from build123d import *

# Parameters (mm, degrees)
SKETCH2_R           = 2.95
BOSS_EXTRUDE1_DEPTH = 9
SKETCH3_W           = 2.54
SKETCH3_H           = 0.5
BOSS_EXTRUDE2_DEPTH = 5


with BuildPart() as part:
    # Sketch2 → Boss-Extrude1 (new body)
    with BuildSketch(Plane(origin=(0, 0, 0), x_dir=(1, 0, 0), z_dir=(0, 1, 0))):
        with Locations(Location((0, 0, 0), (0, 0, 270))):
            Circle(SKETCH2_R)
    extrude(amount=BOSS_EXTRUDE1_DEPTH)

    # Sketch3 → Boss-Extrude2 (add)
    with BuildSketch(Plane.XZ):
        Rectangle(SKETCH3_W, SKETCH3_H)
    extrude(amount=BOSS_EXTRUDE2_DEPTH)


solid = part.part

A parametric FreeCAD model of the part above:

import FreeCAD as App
import Part
import Sketcher
from FreeCAD import Vector
Q = App.Units.Quantity

doc = App.newDocument("Part")
body = doc.addObject("PartDesign::Body", "Body")

sketch1 = doc.addObject("Sketcher::SketchObject", "Sketch")
body.addObject(sketch1)
sketch1.AttachmentSupport = (doc.XZ_Plane, [""])
sketch1.MapMode = "FlatFace"
sketch1.addGeometry(Part.Circle(Vector(0, 0, 0), Vector(0, 0, 1), 2.95), False)
sketch1.addConstraint(Sketcher.Constraint("Coincident", 0, 3, -1, 1))
sketch1.addConstraint(Sketcher.Constraint("Diameter", 0, Q("5.9 mm")))
pad1 = doc.addObject("PartDesign::Pad", "Pad")
body.addObject(pad1)
pad1.Profile = sketch1
pad1.Length = 9
pad1.Reversed = True

sketch2 = doc.addObject("Sketcher::SketchObject", "Sketch001")
body.addObject(sketch2)
sketch2.AttachmentSupport = (doc.XZ_Plane, [""])
sketch2.MapMode = "FlatFace"
sketch2.addGeometry(Part.LineSegment(Vector(-1.27, 0.25, 0), Vector(-1.27, -0.25, 0)), False)
sketch2.addGeometry(Part.LineSegment(Vector(-1.27, -0.25, 0), Vector(1.27, -0.25, 0)), False)
sketch2.addGeometry(Part.LineSegment(Vector(1.27, -0.25, 0), Vector(1.27, 0.25, 0)), False)
sketch2.addGeometry(Part.LineSegment(Vector(1.27, 0.25, 0), Vector(-1.27, 0.25, 0)), False)
sketch2.addConstraint(Sketcher.Constraint("Coincident", 0, 2, 1, 1))
sketch2.addConstraint(Sketcher.Constraint("Coincident", 1, 2, 2, 1))
sketch2.addConstraint(Sketcher.Constraint("Coincident", 2, 2, 3, 1))
sketch2.addConstraint(Sketcher.Constraint("Coincident", 3, 2, 0, 1))
sketch2.addConstraint(Sketcher.Constraint("Vertical", 0))
sketch2.addConstraint(Sketcher.Constraint("Horizontal", 1))
sketch2.addConstraint(Sketcher.Constraint("Vertical", 2))
sketch2.addConstraint(Sketcher.Constraint("Horizontal", 3))
sketch2.addConstraint(Sketcher.Constraint("Symmetric", 0, 2, 2, 2, -1, 1))
sketch2.addConstraint(Sketcher.Constraint("DistanceY", 0, 2, 0, 1, Q("0.5 mm")))
sketch2.addConstraint(Sketcher.Constraint("DistanceX", 1, 1, 1, 2, Q("2.54 mm")))
pad2 = doc.addObject("PartDesign::Pad", "Pad001")
body.addObject(pad2)
pad2.Profile = sketch2
pad2.Length = 5

doc.recompute()
